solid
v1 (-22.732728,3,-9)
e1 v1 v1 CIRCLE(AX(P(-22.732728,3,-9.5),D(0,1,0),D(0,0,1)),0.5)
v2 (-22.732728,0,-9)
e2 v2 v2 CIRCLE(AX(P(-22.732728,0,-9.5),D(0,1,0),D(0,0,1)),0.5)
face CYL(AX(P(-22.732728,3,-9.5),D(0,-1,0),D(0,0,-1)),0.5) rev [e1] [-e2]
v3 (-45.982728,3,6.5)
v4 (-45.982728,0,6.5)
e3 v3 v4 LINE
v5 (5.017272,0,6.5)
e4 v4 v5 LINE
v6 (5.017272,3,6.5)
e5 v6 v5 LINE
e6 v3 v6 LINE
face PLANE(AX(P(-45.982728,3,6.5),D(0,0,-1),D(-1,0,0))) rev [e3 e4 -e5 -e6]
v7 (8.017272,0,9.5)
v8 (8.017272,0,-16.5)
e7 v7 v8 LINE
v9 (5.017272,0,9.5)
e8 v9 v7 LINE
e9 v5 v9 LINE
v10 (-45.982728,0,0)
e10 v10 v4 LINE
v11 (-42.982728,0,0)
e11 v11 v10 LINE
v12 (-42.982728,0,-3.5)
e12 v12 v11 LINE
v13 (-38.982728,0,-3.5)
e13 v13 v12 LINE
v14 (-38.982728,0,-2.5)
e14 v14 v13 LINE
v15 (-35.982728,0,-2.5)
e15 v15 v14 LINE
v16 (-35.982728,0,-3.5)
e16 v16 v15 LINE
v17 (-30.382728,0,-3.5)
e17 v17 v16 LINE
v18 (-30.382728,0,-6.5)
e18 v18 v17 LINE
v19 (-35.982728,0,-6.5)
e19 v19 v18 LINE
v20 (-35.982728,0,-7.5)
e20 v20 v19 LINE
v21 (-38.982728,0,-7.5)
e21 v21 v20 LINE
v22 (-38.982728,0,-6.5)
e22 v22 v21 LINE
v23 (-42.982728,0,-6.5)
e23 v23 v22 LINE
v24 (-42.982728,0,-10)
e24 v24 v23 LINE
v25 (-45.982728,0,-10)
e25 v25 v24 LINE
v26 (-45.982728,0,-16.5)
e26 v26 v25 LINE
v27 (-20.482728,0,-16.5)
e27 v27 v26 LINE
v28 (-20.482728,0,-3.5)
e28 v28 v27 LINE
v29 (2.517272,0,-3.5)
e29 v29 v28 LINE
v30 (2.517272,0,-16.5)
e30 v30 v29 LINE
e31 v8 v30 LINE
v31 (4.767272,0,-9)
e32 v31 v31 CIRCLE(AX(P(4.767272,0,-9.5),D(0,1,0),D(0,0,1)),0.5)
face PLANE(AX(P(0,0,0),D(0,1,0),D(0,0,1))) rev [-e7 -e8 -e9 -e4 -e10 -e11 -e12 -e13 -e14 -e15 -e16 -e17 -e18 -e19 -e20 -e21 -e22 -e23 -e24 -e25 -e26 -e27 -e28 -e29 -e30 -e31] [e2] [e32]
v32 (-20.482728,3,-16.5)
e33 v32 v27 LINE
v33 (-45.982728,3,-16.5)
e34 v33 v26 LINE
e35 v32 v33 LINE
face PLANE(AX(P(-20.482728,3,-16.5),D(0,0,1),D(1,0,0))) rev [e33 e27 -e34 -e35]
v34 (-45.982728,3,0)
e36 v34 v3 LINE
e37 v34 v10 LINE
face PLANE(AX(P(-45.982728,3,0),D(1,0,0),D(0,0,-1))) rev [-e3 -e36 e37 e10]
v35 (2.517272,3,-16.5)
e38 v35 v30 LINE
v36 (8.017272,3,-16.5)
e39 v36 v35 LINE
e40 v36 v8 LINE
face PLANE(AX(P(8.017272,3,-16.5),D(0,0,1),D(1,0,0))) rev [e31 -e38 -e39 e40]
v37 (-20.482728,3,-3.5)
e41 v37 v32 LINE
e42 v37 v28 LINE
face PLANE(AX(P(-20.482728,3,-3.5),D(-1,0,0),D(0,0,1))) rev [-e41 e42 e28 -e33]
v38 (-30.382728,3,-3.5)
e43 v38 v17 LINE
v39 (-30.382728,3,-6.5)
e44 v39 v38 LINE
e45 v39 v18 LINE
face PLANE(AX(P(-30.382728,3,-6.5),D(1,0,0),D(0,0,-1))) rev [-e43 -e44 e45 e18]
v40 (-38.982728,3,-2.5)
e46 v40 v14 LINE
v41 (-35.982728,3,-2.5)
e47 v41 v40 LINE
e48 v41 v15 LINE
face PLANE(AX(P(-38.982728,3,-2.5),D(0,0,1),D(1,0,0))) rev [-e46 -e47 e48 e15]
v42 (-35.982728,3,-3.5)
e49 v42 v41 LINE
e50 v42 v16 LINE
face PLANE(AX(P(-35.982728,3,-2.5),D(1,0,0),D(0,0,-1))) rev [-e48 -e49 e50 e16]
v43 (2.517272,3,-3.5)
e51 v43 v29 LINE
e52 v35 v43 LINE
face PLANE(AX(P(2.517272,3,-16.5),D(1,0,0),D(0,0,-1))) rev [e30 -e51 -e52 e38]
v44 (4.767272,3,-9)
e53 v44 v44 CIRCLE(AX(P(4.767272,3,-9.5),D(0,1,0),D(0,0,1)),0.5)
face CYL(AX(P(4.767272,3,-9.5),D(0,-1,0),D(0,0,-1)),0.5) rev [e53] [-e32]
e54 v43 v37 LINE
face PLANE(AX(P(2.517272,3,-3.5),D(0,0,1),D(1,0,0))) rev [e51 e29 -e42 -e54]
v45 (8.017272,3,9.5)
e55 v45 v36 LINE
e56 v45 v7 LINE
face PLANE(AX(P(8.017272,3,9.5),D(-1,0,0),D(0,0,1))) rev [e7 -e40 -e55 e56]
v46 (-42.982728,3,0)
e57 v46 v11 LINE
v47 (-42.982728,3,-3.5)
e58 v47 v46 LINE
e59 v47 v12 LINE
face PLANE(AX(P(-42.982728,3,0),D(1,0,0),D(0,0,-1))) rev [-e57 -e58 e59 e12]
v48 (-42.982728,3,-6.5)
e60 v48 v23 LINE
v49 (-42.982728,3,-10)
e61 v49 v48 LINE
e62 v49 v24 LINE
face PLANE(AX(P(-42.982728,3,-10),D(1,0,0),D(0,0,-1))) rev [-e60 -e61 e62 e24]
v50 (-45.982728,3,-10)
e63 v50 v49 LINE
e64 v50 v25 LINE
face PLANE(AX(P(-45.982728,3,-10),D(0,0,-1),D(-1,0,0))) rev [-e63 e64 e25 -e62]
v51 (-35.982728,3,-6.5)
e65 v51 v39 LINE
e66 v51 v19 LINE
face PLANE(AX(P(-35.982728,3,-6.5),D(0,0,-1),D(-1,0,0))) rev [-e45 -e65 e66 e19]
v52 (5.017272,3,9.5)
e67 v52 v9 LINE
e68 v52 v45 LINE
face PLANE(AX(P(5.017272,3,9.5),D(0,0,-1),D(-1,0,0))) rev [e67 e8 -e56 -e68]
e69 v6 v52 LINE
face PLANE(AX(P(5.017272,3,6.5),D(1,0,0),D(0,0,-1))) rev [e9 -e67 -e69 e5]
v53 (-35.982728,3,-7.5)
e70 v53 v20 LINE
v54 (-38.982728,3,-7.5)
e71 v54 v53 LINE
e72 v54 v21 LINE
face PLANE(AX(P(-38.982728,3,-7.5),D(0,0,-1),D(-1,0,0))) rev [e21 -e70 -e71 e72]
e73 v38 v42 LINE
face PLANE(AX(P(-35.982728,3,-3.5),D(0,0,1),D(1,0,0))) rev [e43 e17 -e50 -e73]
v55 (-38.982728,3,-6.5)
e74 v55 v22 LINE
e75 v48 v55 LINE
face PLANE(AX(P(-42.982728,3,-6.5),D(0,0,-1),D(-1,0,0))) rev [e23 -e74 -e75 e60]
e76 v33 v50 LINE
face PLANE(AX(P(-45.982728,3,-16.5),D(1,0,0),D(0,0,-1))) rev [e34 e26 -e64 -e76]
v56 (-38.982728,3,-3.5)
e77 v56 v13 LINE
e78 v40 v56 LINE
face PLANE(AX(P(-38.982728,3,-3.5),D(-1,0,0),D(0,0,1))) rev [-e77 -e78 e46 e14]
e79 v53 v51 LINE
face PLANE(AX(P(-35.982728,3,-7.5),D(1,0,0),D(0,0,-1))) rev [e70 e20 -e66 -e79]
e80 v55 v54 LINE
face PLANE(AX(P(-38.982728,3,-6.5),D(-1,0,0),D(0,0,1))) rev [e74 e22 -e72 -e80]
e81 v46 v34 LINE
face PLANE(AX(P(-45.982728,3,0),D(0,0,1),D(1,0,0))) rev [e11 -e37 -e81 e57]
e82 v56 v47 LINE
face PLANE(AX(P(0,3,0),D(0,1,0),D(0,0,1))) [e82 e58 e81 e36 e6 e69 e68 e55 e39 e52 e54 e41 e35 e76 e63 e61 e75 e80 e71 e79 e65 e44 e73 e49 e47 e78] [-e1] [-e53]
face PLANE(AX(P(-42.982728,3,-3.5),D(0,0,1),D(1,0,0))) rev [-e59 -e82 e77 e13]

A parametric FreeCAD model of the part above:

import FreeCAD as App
import Part
import Sketcher
from FreeCAD import Vector
Q = App.Units.Quantity


def add_polygon(sketch, points):
    """Adds a closed chain of lines whose ends are joined by coincident constraints."""
    first, n = sketch.GeometryCount, len(points)
    for a, b in zip(points, points[1:] + points[:1]):
        sketch.addGeometry(Part.LineSegment(App.Vector(*a, 0), App.Vector(*b, 0)), False)
    for i in range(n):
        sketch.addConstraint(Sketcher.Constraint("Coincident", first + i, 2, first + (i + 1) % n, 1))

doc = App.newDocument("Part")
body = doc.addObject("PartDesign::Body", "Body")

# Sketch on XZ plane
sketch1 = doc.addObject("Sketcher::SketchObject", "Sketch")
body.addObject(sketch1)
sketch1.AttachmentSupport = (doc.XZ_Plane, [""])
sketch1.MapMode = "FlatFace"
add_polygon(sketch1, [(-46, 0), (-46, 6.5), (5, 6.5), (5, 9.5), (8, 9.5), (8, -16.5), (2.5, -16.5), (2.5, -3.5), (-20.5, -3.5), (-20.5, -16.5), (-46, -16.5), (-46, -10), (-43, -10), (-43, -6.5), (-39, -6.5), (-39, -7.5), (-36, -7.5), (-36, -6.5), (-30.4, -6.5), (-30.4, -3.5), (-36, -3.5), (-36, -2.5), (-39, -2.5), (-39, -3.5), (-43, -3.5), (-43, 0)])  # lines 0-25
sketch1.addGeometry(Part.Circle(Vector(-22.7, -9.5, 0), Vector(0, 0, 1), 0.5), False)  # 26
sketch1.addGeometry(Part.Circle(Vector(4.8, -9.5, 0), Vector(0, 0, 1), 0.5), False)  # 27
sketch1.addConstraint([
    Sketcher.Constraint("Vertical", 0),
    Sketcher.Constraint("Horizontal", 1),
    Sketcher.Constraint("Vertical", 2),
    Sketcher.Constraint("Horizontal", 3),
    Sketcher.Constraint("Vertical", 4),
    Sketcher.Constraint("Horizontal", 5),
    Sketcher.Constraint("Vertical", 6),
    Sketcher.Constraint("Horizontal", 7),
    Sketcher.Constraint("Vertical", 8),
    Sketcher.Constraint("Horizontal", 9),
    Sketcher.Constraint("Vertical", 10),
    Sketcher.Constraint("Horizontal", 11),
    Sketcher.Constraint("Vertical", 12),
    Sketcher.Constraint("Horizontal", 13),
    Sketcher.Constraint("Vertical", 14),
    Sketcher.Constraint("Horizontal", 15),
    Sketcher.Constraint("Vertical", 16),
    Sketcher.Constraint("Horizontal", 17),
    Sketcher.Constraint("Vertical", 18),
    Sketcher.Constraint("Horizontal", 19),
    Sketcher.Constraint("Vertical", 20),
    Sketcher.Constraint("Horizontal", 21),
    Sketcher.Constraint("Vertical", 22),
    Sketcher.Constraint("Horizontal", 23),
    Sketcher.Constraint("Vertical", 24),
    Sketcher.Constraint("Horizontal", 25),
    Sketcher.Constraint("Equal", 26, 27),
    Sketcher.Constraint("PointOnObject", 24, 2, -1),
    Sketcher.Constraint("Horizontal", 26, 3, 27, 3),
    Sketcher.Constraint("Horizontal", 5, 2, 8, 2),
    Sketcher.Constraint("Horizontal", 13, 2, 16, 2),
    Sketcher.Constraint("Horizontal", 7, 2, 18, 2),
    Sketcher.Constraint("Horizontal", 19, 2, 22, 2),
    Sketcher.Constraint("Vertical", 0, 2, 9, 2),
    Sketcher.Constraint("Vertical", 16, 2, 19, 2),
    Sketcher.Constraint("Vertical", 14, 2, 21, 2),
    Sketcher.Constraint("Vertical", 12, 2, 23, 2),
    Sketcher.Constraint("Equal", 3, 11),
    Sketcher.Constraint("Equal", 11, 15),
    Sketcher.Constraint("Equal", 25, 2),
    Sketcher.Constraint("Equal", 0, 10),
    Sketcher.Constraint("Equal", 2, 18),
    Sketcher.Constraint("Equal", 16, 20),
    Sketcher.Constraint("Equal", 12, 24),
    Sketcher.Constraint("Diameter", 26, Q("1 mm")),
    Sketcher.Constraint("DistanceX", 1, 1, 1, 2, Q("51 mm")),
    Sketcher.Constraint("DistanceX", 3, 1, 3, 2, Q("3 mm")),
    Sketcher.Constraint("DistanceX", 7, 2, 7, 1, Q("23 mm")),
    Sketcher.Constraint("DistanceX", 13, 1, 13, 2, Q("4 mm")),
    Sketcher.Constraint("DistanceY", 4, 2, 4, 1, Q("26 mm")),
    Sketcher.Constraint("DistanceY", 14, 2, 14, 1, Q("1 mm")),
    Sketcher.Constraint("DistanceX", 5, 2, 5, 1, Q("5.5 mm")),
    Sketcher.Constraint("DistanceX", 17, 1, 17, 2, Q("5.6 mm")),
    Sketcher.Constraint("DistanceY", 0, 1, 0, 2, Q("6.5 mm")),
    Sketcher.Constraint("DistanceY", 26, 3, 0, 2, Q("16 mm")),
    Sketcher.Constraint("DistanceX", 26, 3, 27, 3, Q("27.5 mm")),
    Sketcher.Constraint("DistanceX", 0, 2, 26, 3, Q("23.25 mm")),
    Sketcher.Constraint("DistanceX", 26, 3, -1, 1, Q("22.732728 mm")),
])
pad1 = doc.addObject("PartDesign::Pad", "Pad")
body.addObject(pad1)
pad1.Profile = sketch1
pad1.Length = 3
pad1.Reversed = True

doc.recompute()
